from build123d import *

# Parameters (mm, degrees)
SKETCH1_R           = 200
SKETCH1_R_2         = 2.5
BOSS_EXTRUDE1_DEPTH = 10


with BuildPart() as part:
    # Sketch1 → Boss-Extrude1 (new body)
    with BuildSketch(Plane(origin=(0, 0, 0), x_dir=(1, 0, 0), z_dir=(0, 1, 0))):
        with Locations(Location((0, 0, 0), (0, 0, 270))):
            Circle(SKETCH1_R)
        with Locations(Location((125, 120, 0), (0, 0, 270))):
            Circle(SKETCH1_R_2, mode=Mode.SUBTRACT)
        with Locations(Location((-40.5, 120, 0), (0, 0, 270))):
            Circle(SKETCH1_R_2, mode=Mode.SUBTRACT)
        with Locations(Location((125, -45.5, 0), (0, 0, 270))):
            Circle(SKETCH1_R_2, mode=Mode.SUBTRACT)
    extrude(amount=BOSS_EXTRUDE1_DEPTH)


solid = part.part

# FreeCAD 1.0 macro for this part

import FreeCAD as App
import Part
import Sketcher

doc = App.newDocument("Part")
body = doc.addObject("PartDesign::Body", "Body")

# Sketch on XZ plane
sketch1 = body.newObject("Sketcher::SketchObject", "Sketch")
sketch1.AttachmentSupport = (doc.getObject("XZ_Plane"), [""])
sketch1.MapMode = "FlatFace"
sketch1.addGeometry([
    Part.Circle(App.Vector(0, 0, 0), App.Vector(0, 0, 1), 200),
    Part.Circle(App.Vector(-40.5, -120, 0), App.Vector(0, 0, 1), 2.5),
    Part.Circle(App.Vector(125, -120, 0), App.Vector(0, 0, 1), 2.5),
    Part.Circle(App.Vector(125, 45.5, 0), App.Vector(0, 0, 1), 2.5),
], False)
sketch1.addConstraint([
    Sketcher.Constraint("Coincident", 0, 3, -1, 1),
    Sketcher.Constraint("Equal", 1, 2),
    Sketcher.Constraint("Equal", 2, 3),
    Sketcher.Constraint("Horizontal", 1, 3, 2, 3),
    Sketcher.Constraint("Vertical", 2, 3, 3, 3),
    Sketcher.Constraint("Diameter", 0, 400.0),
    Sketcher.Constraint("Diameter", 1, 5.0),
    Sketcher.Constraint("DistanceY", 1, 3, -1, 1, 120.0),
    Sketcher.Constraint("DistanceX", -1, 1, 2, 3, 125.0),
    Sketcher.Constraint("DistanceX", 1, 3, -1, 1, 40.5),
    Sketcher.Constraint("DistanceY", -1, 1, 3, 3, 45.5),
])
pad1 = body.newObject("PartDesign::Pad", "Pad")
pad1.Profile = sketch1
pad1.Length = 10
pad1.Reversed = True

doc.recompute()
